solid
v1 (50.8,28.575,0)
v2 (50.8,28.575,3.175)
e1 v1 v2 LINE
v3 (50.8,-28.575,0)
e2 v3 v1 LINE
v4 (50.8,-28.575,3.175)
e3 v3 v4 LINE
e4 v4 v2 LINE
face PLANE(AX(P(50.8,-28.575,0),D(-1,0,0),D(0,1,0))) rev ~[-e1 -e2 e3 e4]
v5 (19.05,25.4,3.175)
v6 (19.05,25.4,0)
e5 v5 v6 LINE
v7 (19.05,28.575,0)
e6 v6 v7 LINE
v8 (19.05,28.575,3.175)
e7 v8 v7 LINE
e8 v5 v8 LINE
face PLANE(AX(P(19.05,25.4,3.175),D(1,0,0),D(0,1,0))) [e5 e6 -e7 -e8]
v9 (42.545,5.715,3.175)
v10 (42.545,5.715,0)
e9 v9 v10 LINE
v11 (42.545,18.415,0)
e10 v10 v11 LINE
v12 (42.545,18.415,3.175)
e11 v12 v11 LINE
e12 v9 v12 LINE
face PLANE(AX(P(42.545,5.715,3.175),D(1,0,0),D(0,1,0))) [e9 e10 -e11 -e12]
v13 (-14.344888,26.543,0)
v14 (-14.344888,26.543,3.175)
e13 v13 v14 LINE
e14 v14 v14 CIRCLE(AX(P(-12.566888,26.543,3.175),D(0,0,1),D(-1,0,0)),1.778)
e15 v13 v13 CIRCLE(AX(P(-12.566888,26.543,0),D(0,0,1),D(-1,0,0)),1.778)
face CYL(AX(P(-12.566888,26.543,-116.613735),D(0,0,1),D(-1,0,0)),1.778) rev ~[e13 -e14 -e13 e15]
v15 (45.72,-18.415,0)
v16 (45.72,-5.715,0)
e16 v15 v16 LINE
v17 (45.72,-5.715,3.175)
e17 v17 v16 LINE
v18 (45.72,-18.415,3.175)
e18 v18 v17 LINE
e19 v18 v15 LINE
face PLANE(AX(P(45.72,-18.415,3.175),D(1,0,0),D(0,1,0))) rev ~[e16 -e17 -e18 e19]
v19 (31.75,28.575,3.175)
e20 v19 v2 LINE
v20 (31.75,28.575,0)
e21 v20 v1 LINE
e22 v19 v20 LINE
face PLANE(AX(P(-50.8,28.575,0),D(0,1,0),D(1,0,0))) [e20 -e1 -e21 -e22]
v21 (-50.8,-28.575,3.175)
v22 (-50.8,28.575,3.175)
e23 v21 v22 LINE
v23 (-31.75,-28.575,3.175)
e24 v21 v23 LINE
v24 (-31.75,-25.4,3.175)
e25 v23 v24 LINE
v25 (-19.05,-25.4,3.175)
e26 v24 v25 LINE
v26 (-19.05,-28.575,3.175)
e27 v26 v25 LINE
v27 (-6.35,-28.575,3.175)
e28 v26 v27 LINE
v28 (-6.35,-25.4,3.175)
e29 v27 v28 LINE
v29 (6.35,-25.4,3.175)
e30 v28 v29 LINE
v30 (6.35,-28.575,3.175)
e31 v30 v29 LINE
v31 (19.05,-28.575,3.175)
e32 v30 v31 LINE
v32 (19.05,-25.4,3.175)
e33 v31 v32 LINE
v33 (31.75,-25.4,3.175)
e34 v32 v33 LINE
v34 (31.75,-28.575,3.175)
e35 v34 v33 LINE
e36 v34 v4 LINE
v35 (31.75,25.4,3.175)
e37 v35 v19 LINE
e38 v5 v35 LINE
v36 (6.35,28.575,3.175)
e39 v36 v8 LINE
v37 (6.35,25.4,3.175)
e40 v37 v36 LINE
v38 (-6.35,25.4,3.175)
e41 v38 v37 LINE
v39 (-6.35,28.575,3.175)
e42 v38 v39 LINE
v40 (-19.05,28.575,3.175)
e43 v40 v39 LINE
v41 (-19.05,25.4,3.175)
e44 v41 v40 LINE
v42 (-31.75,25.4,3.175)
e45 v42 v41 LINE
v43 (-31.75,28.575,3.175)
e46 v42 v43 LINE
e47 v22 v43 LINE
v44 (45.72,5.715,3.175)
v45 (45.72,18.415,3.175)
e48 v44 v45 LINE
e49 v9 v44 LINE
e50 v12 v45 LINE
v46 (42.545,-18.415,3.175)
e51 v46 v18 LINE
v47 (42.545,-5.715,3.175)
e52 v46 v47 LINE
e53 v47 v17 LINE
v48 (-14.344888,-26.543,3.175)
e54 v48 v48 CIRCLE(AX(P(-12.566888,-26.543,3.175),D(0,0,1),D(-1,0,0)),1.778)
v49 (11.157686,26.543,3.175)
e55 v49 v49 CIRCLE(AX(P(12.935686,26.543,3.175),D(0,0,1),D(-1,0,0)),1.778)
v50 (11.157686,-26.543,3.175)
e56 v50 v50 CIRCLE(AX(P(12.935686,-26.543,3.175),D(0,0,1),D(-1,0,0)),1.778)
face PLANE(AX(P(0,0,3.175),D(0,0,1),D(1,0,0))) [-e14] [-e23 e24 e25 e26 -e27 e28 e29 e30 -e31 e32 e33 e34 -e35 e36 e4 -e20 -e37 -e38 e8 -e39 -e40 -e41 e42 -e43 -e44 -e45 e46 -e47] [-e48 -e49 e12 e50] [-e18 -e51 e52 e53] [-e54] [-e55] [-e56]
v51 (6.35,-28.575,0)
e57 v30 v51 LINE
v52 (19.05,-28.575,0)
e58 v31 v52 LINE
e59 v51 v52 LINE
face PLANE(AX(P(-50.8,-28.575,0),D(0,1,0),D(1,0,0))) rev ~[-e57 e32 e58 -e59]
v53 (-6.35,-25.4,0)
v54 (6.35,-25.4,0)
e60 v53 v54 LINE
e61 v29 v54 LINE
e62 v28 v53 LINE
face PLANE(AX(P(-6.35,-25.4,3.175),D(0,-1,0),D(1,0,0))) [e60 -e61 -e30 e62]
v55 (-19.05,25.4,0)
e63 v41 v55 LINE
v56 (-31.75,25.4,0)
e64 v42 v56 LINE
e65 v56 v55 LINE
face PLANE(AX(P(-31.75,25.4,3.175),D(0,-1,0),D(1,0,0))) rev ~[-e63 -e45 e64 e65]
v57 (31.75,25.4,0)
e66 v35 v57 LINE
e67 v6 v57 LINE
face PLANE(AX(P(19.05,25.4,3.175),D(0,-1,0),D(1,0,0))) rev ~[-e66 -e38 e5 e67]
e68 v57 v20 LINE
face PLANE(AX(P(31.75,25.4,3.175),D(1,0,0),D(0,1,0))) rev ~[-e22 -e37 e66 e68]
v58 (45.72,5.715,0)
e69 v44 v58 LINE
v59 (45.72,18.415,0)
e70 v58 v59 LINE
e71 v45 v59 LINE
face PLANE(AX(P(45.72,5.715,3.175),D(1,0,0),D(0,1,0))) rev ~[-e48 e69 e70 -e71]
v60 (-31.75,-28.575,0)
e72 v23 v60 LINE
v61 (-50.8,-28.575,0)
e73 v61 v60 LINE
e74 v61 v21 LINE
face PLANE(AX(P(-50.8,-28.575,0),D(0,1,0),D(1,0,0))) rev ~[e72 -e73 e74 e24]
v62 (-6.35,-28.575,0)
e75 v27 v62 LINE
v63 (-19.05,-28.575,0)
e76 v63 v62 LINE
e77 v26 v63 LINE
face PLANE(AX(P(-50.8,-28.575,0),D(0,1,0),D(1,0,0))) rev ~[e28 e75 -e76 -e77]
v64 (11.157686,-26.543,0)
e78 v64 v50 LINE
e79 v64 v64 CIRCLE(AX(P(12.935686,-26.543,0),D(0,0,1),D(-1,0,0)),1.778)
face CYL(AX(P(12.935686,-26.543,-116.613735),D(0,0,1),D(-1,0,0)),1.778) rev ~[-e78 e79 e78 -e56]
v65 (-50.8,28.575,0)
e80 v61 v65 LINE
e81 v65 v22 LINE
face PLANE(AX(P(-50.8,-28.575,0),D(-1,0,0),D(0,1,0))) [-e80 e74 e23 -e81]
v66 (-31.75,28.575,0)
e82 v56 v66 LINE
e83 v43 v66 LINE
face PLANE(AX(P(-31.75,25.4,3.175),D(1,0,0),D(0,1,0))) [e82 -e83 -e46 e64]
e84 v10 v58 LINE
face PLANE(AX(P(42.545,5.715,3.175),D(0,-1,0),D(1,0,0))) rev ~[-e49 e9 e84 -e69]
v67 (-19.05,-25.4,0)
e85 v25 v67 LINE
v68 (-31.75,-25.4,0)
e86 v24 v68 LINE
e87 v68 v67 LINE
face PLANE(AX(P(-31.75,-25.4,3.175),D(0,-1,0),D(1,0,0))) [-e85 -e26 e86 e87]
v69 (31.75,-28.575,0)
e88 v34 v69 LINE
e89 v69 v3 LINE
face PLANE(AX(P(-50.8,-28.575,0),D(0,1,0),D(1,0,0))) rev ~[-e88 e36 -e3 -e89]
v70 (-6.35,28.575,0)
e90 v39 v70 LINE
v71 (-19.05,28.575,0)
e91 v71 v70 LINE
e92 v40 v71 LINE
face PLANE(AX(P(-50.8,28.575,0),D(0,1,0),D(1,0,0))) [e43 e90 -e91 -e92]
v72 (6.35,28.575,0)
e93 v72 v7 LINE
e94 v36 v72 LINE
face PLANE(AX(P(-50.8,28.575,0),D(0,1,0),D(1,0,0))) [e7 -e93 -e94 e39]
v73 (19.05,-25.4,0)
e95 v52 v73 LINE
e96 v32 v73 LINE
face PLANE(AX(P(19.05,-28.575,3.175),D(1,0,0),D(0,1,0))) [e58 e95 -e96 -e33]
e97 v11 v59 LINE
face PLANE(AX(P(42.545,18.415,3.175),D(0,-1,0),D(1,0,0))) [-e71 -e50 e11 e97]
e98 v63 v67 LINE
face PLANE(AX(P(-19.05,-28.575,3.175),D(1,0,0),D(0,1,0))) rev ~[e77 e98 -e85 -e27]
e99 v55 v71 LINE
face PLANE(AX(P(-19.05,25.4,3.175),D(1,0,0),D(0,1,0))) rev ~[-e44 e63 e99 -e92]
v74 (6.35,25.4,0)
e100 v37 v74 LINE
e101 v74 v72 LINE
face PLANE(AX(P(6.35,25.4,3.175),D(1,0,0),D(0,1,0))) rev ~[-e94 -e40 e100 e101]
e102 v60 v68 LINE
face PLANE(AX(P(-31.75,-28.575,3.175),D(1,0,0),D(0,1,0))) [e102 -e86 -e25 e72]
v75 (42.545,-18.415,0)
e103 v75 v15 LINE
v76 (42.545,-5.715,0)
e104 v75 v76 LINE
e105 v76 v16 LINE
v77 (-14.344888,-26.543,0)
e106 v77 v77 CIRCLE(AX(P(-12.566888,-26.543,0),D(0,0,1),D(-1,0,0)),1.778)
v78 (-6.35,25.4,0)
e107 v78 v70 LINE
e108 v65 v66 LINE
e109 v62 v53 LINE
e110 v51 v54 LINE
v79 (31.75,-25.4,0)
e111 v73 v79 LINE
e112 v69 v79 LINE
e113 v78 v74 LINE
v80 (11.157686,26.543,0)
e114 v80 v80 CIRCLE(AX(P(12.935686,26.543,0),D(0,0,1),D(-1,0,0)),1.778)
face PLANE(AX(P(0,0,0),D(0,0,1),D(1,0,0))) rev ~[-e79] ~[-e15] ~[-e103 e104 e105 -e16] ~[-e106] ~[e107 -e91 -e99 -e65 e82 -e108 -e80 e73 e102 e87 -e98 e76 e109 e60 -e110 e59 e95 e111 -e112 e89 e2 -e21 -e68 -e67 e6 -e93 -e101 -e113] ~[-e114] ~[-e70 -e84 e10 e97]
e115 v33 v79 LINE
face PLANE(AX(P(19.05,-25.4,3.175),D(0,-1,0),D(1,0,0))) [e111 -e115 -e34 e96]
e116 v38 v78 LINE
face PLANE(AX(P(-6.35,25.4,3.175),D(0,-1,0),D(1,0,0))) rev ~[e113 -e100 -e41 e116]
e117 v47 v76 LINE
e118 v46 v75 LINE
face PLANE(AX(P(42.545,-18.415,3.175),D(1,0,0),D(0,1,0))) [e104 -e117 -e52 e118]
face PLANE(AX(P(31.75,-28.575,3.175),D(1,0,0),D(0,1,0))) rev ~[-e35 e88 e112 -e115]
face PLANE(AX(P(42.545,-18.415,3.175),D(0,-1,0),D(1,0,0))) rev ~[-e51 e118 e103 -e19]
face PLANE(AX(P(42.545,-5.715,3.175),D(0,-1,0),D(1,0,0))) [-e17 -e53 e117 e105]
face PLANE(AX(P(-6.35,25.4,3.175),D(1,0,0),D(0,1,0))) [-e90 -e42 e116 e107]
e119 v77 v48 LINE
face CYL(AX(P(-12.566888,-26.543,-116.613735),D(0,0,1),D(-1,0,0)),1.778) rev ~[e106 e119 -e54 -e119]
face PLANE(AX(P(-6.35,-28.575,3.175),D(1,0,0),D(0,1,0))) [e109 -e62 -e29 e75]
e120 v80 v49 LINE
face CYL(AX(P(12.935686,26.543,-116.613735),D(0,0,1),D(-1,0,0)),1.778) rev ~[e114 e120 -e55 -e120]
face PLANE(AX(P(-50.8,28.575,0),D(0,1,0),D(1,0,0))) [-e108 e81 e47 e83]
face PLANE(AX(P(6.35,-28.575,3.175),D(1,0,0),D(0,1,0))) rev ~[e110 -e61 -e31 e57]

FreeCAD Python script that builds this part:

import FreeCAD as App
import Part
import Sketcher
from FreeCAD import Vector
Q = App.Units.Quantity


def add_polygon(sketch, points):
    """Adds a closed chain of lines whose ends are joined by coincident constraints."""
    first, n = sketch.GeometryCount, len(points)
    for a, b in zip(points, points[1:] + points[:1]):
        sketch.addGeometry(Part.LineSegment(App.Vector(*a, 0), App.Vector(*b, 0)), False)
    for i in range(n):
        sketch.addConstraint(Sketcher.Constraint("Coincident", first + i, 2, first + (i + 1) % n, 1))

doc = App.newDocument("Part")
body = doc.addObject("PartDesign::Body", "Body")

# Sketch on XY plane
sketch1 = doc.addObject("Sketcher::SketchObject", "Sketch")
body.addObject(sketch1)
sketch1.AttachmentSupport = (doc.XY_Plane, [""])
sketch1.MapMode = "FlatFace"
add_polygon(sketch1, [(-51, 29), (-51, -29), (51, -29), (51, 29)])  # lines 0-3
sketch1.addConstraint(Sketcher.Constraint("Vertical", 0))
sketch1.addConstraint(Sketcher.Constraint("Horizontal", 1))
sketch1.addConstraint(Sketcher.Constraint("Vertical", 2))
sketch1.addConstraint(Sketcher.Constraint("Horizontal", 3))
sketch1.addConstraint(Sketcher.Constraint("Symmetric", 0, 2, 2, 2, -1, 1))
sketch1.addConstraint(Sketcher.Constraint("DistanceX", 1, 1, 1, 2, Q("4 in")))
sketch1.addConstraint(Sketcher.Constraint("DistanceY", 0, 2, 0, 1, Q("2.25 in")))
pad1 = doc.addObject("PartDesign::Pad", "Pad")
body.addObject(pad1)
pad1.Profile = sketch1
pad1.Length = Q("0.125 in")

# Sketch on XY plane
sketch2 = doc.addObject("Sketcher::SketchObject", "Sketch001")
body.addObject(sketch2)
sketch2.AttachmentSupport = (doc.XY_Plane, [""])
sketch2.MapMode = "FlatFace"
sketch2.AttachmentOffset = App.Placement(Vector(0, 0, 0.125 * 25.4), App.Rotation())
add_polygon(sketch2, [(-31.8, -25.4), (-31.8, -28.6), (-19.1, -28.6), (-19.1, -25.4)])  # lines 0-3
add_polygon(sketch2, [(-6.3, -25.4), (-6.3, -28.6), (6.3, -28.6), (6.3, -25.4)])  # lines 4-7
add_polygon(sketch2, [(19.1, -25.4), (19.1, -28.6), (31.8, -28.6), (31.8, -25.4)])  # lines 8-11
add_polygon(sketch2, [(42.5, -5.7), (42.5, -18.4), (45.7, -18.4), (45.7, -5.7)])  # lines 12-15
add_polygon(sketch2, [(42.5, 18.4), (42.5, 5.7), (45.7, 5.7), (45.7, 18.4)])  # lines 16-19
add_polygon(sketch2, [(-31.8, 28.6), (-31.8, 25.4), (-19.1, 25.4), (-19.1, 28.6)])  # lines 20-23
add_polygon(sketch2, [(-6.3, 28.6), (-6.3, 25.4), (6.3, 25.4), (6.3, 28.6)])  # lines 24-27
add_polygon(sketch2, [(19.1, 28.6), (19.1, 25.4), (31.8, 25.4), (31.8, 28.6)])  # lines 28-31
sketch2.addConstraint(Sketcher.Constraint("Vertical", 0))
sketch2.addConstraint(Sketcher.Constraint("Horizontal", 1))
sketch2.addConstraint(Sketcher.Constraint("Vertical", 2))
sketch2.addConstraint(Sketcher.Constraint("Horizontal", 3))
sketch2.addConstraint(Sketcher.Constraint("Vertical", 4))
sketch2.addConstraint(Sketcher.Constraint("Horizontal", 5))
sketch2.addConstraint(Sketcher.Constraint("Vertical", 6))
sketch2.addConstraint(Sketcher.Constraint("Horizontal", 7))
sketch2.addConstraint(Sketcher.Constraint("Vertical", 8))
sketch2.addConstraint(Sketcher.Constraint("Horizontal", 9))
sketch2.addConstraint(Sketcher.Constraint("Vertical", 10))
sketch2.addConstraint(Sketcher.Constraint("Horizontal", 11))
sketch2.addConstraint(Sketcher.Constraint("Vertical", 12))
sketch2.addConstraint(Sketcher.Constraint("Horizontal", 13))
sketch2.addConstraint(Sketcher.Constraint("Vertical", 14))
sketch2.addConstraint(Sketcher.Constraint("Horizontal", 15))
sketch2.addConstraint(Sketcher.Constraint("Vertical", 16))
sketch2.addConstraint(Sketcher.Constraint("Horizontal", 17))
sketch2.addConstraint(Sketcher.Constraint("Vertical", 18))
sketch2.addConstraint(Sketcher.Constraint("Horizontal", 19))
sketch2.addConstraint(Sketcher.Constraint("Vertical", 20))
sketch2.addConstraint(Sketcher.Constraint("Horizontal", 21))
sketch2.addConstraint(Sketcher.Constraint("Vertical", 22))
sketch2.addConstraint(Sketcher.Constraint("Horizontal", 23))
sketch2.addConstraint(Sketcher.Constraint("Vertical", 24))
sketch2.addConstraint(Sketcher.Constraint("Horizontal", 25))
sketch2.addConstraint(Sketcher.Constraint("Vertical", 26))
sketch2.addConstraint(Sketcher.Constraint("Horizontal", 27))
sketch2.addConstraint(Sketcher.Constraint("Vertical", 28))
sketch2.addConstraint(Sketcher.Constraint("Horizontal", 29))
sketch2.addConstraint(Sketcher.Constraint("Vertical", 30))
sketch2.addConstraint(Sketcher.Constraint("Horizontal", 31))
sketch2.addConstraint(Sketcher.Constraint("Symmetric", 10, 2, 20, 2, -1, 1))
sketch2.addConstraint(Sketcher.Constraint("Symmetric", 8, 2, 22, 2, -1, 1))
sketch2.addConstraint(Sketcher.Constraint("Symmetric", 6, 2, 24, 2, -1, 1))
sketch2.addConstraint(Sketcher.Constraint("Symmetric", 4, 2, 26, 2, -1, 1))
sketch2.addConstraint(Sketcher.Constraint("Symmetric", 2, 2, 28, 2, -1, 1))
sketch2.addConstraint(Sketcher.Constraint("Symmetric", 0, 2, 30, 2, -1, 1))
sketch2.addConstraint(Sketcher.Constraint("Symmetric", 1, 2, 8, 2, -2))
sketch2.addConstraint(Sketcher.Constraint("Symmetric", 3, 2, 10, 2, -2))
sketch2.addConstraint(Sketcher.Constraint("Symmetric", 15, 2, 16, 2, -1))
sketch2.addConstraint(Sketcher.Constraint("Symmetric", 13, 2, 18, 2, -1))
sketch2.addConstraint(Sketcher.Constraint("Horizontal", 1, 2, 4, 2))
sketch2.addConstraint(Sketcher.Constraint("Horizontal", 3, 2, 6, 2))
sketch2.addConstraint(Sketcher.Constraint("Vertical", 7, 2, 24, 2))
sketch2.addConstraint(Sketcher.Constraint("Equal", 3, 5))
sketch2.addConstraint(Sketcher.Constraint("Equal", 19, 0))
sketch2.addConstraint(Sketcher.Constraint("Equal", 31, 12))
sketch2.addConstraint(Sketcher.Constraint("DistanceX", 1, 1, 1, 2, Q("0.5 in")))
sketch2.addConstraint(Sketcher.Constraint("DistanceY", 2, 2, -1, 1, Q("1 in")))
sketch2.addConstraint(Sketcher.Constraint("DistanceX", 0, 2, 4, 2, Q("1 in")))
sketch2.addConstraint(Sketcher.Constraint("DistanceX", -1, 1, 13, 2, Q("1.8 in")))
sketch2.addConstraint(Sketcher.Constraint("DistanceY", 9, 2, 12, 2, Q("0.4 in")))
sketch2.addConstraint(Sketcher.Constraint("DistanceX", 13, 1, 13, 2, Q("0.125 in")))
pocket1 = doc.addObject("PartDesign::Pocket", "Pocket")
body.addObject(pocket1)
pocket1.Profile = sketch2
pocket1.Type = "ThroughAll"

# Sketch on XY plane
sketch3 = doc.addObject("Sketcher::SketchObject", "Sketch002")
body.addObject(sketch3)
sketch3.AttachmentSupport = (doc.XY_Plane, [""])
sketch3.MapMode = "FlatFace"
sketch3.addGeometry(Part.Circle(Vector(-12.6, -26.5, 0), Vector(0, 0, 1), 1.8), False)
sketch3.addGeometry(Part.Circle(Vector(12.9, -26.5, 0), Vector(0, 0, 1), 1.8), False)
sketch3.addGeometry(Part.Circle(Vector(-12.6, 26.5, 0), Vector(0, 0, 1), 1.8), False)
sketch3.addGeometry(Part.Circle(Vector(12.9, 26.5, 0), Vector(0, 0, 1), 1.8), False)
sketch3.addConstraint(Sketcher.Constraint("Equal", 0, 1))
sketch3.addConstraint(Sketcher.Constraint("Equal", 1, 2))
sketch3.addConstraint(Sketcher.Constraint("Equal", 2, 3))
sketch3.addConstraint(Sketcher.Constraint("Symmetric", 0, 3, 2, 3, -1))
sketch3.addConstraint(Sketcher.Constraint("Symmetric", 1, 3, 3, 3, -1))
sketch3.addConstraint(Sketcher.Constraint("Horizontal", 0, 3, 1, 3))
sketch3.addConstraint(Sketcher.Constraint("Diameter", 0, Q("0.14 in")))
sketch3.addConstraint(Sketcher.Constraint("DistanceY", 0, 3, 2, 3, Q("2.09 in")))
sketch3.addConstraint(Sketcher.Constraint("DistanceX", 0, 3, -1, 1, Q("12.566888 mm")))
sketch3.addConstraint(Sketcher.Constraint("DistanceX", -1, 1, 1, 3, Q("12.935686 mm")))
doc.recompute()
hole = doc.addObject("PartDesign::Hole", "Hole")
body.addObject(hole)
hole.Profile = sketch3
hole.ThreadType = "None"
hole.Diameter = Q("0.14 in")
hole.DepthType = "ThroughAll"
hole.Reversed = True

doc.recompute()
